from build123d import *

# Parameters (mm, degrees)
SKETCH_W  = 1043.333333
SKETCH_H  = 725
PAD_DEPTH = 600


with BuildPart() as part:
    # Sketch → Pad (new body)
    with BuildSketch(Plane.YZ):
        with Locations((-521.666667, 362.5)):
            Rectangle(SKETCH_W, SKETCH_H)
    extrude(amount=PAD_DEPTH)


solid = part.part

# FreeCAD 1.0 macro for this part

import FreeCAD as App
import Part
import Sketcher
Q = App.Units.Quantity


def add_polygon(sketch, points):
    """Adds a closed chain of lines whose ends are joined by coincident constraints."""
    first, n = sketch.GeometryCount, len(points)
    for a, b in zip(points, points[1:] + points[:1]):
        sketch.addGeometry(Part.LineSegment(App.Vector(*a, 0), App.Vector(*b, 0)), False)
    for i in range(n):
        sketch.addConstraint(Sketcher.Constraint("Coincident", first + i, 2, first + (i + 1) % n, 1))

doc = App.newDocument("Part")
body = doc.addObject("PartDesign::Body", "Body")

sketch1 = body.newObject("Sketcher::SketchObject", "Sketch")
sketch1.AttachmentSupport = (doc.getObject("YZ_Plane"), [""])
sketch1.MapMode = "FlatFace"
add_polygon(sketch1, [(-1043, 725), (-1043, 0), (0, 0), (0, 725)])
sketch1.addConstraint(Sketcher.Constraint("Vertical", 0))
sketch1.addConstraint(Sketcher.Constraint("Horizontal", 1))
sketch1.addConstraint(Sketcher.Constraint("Vertical", 2))
sketch1.addConstraint(Sketcher.Constraint("Horizontal", 3))
sketch1.addConstraint(Sketcher.Constraint("Coincident", 1, 2, -1, 1))
sketch1.addConstraint(Sketcher.Constraint("DistanceY", 0, 2, 0, 1, Q("725 mm")))
sketch1.addConstraint(Sketcher.Constraint("DistanceX", 1, 1, 1, 2, Q("1043.333333 mm")))
pad1 = body.newObject("PartDesign::Pad", "Pad")
pad1.Profile = sketch1
pad1.Length = 600

doc.recompute()
